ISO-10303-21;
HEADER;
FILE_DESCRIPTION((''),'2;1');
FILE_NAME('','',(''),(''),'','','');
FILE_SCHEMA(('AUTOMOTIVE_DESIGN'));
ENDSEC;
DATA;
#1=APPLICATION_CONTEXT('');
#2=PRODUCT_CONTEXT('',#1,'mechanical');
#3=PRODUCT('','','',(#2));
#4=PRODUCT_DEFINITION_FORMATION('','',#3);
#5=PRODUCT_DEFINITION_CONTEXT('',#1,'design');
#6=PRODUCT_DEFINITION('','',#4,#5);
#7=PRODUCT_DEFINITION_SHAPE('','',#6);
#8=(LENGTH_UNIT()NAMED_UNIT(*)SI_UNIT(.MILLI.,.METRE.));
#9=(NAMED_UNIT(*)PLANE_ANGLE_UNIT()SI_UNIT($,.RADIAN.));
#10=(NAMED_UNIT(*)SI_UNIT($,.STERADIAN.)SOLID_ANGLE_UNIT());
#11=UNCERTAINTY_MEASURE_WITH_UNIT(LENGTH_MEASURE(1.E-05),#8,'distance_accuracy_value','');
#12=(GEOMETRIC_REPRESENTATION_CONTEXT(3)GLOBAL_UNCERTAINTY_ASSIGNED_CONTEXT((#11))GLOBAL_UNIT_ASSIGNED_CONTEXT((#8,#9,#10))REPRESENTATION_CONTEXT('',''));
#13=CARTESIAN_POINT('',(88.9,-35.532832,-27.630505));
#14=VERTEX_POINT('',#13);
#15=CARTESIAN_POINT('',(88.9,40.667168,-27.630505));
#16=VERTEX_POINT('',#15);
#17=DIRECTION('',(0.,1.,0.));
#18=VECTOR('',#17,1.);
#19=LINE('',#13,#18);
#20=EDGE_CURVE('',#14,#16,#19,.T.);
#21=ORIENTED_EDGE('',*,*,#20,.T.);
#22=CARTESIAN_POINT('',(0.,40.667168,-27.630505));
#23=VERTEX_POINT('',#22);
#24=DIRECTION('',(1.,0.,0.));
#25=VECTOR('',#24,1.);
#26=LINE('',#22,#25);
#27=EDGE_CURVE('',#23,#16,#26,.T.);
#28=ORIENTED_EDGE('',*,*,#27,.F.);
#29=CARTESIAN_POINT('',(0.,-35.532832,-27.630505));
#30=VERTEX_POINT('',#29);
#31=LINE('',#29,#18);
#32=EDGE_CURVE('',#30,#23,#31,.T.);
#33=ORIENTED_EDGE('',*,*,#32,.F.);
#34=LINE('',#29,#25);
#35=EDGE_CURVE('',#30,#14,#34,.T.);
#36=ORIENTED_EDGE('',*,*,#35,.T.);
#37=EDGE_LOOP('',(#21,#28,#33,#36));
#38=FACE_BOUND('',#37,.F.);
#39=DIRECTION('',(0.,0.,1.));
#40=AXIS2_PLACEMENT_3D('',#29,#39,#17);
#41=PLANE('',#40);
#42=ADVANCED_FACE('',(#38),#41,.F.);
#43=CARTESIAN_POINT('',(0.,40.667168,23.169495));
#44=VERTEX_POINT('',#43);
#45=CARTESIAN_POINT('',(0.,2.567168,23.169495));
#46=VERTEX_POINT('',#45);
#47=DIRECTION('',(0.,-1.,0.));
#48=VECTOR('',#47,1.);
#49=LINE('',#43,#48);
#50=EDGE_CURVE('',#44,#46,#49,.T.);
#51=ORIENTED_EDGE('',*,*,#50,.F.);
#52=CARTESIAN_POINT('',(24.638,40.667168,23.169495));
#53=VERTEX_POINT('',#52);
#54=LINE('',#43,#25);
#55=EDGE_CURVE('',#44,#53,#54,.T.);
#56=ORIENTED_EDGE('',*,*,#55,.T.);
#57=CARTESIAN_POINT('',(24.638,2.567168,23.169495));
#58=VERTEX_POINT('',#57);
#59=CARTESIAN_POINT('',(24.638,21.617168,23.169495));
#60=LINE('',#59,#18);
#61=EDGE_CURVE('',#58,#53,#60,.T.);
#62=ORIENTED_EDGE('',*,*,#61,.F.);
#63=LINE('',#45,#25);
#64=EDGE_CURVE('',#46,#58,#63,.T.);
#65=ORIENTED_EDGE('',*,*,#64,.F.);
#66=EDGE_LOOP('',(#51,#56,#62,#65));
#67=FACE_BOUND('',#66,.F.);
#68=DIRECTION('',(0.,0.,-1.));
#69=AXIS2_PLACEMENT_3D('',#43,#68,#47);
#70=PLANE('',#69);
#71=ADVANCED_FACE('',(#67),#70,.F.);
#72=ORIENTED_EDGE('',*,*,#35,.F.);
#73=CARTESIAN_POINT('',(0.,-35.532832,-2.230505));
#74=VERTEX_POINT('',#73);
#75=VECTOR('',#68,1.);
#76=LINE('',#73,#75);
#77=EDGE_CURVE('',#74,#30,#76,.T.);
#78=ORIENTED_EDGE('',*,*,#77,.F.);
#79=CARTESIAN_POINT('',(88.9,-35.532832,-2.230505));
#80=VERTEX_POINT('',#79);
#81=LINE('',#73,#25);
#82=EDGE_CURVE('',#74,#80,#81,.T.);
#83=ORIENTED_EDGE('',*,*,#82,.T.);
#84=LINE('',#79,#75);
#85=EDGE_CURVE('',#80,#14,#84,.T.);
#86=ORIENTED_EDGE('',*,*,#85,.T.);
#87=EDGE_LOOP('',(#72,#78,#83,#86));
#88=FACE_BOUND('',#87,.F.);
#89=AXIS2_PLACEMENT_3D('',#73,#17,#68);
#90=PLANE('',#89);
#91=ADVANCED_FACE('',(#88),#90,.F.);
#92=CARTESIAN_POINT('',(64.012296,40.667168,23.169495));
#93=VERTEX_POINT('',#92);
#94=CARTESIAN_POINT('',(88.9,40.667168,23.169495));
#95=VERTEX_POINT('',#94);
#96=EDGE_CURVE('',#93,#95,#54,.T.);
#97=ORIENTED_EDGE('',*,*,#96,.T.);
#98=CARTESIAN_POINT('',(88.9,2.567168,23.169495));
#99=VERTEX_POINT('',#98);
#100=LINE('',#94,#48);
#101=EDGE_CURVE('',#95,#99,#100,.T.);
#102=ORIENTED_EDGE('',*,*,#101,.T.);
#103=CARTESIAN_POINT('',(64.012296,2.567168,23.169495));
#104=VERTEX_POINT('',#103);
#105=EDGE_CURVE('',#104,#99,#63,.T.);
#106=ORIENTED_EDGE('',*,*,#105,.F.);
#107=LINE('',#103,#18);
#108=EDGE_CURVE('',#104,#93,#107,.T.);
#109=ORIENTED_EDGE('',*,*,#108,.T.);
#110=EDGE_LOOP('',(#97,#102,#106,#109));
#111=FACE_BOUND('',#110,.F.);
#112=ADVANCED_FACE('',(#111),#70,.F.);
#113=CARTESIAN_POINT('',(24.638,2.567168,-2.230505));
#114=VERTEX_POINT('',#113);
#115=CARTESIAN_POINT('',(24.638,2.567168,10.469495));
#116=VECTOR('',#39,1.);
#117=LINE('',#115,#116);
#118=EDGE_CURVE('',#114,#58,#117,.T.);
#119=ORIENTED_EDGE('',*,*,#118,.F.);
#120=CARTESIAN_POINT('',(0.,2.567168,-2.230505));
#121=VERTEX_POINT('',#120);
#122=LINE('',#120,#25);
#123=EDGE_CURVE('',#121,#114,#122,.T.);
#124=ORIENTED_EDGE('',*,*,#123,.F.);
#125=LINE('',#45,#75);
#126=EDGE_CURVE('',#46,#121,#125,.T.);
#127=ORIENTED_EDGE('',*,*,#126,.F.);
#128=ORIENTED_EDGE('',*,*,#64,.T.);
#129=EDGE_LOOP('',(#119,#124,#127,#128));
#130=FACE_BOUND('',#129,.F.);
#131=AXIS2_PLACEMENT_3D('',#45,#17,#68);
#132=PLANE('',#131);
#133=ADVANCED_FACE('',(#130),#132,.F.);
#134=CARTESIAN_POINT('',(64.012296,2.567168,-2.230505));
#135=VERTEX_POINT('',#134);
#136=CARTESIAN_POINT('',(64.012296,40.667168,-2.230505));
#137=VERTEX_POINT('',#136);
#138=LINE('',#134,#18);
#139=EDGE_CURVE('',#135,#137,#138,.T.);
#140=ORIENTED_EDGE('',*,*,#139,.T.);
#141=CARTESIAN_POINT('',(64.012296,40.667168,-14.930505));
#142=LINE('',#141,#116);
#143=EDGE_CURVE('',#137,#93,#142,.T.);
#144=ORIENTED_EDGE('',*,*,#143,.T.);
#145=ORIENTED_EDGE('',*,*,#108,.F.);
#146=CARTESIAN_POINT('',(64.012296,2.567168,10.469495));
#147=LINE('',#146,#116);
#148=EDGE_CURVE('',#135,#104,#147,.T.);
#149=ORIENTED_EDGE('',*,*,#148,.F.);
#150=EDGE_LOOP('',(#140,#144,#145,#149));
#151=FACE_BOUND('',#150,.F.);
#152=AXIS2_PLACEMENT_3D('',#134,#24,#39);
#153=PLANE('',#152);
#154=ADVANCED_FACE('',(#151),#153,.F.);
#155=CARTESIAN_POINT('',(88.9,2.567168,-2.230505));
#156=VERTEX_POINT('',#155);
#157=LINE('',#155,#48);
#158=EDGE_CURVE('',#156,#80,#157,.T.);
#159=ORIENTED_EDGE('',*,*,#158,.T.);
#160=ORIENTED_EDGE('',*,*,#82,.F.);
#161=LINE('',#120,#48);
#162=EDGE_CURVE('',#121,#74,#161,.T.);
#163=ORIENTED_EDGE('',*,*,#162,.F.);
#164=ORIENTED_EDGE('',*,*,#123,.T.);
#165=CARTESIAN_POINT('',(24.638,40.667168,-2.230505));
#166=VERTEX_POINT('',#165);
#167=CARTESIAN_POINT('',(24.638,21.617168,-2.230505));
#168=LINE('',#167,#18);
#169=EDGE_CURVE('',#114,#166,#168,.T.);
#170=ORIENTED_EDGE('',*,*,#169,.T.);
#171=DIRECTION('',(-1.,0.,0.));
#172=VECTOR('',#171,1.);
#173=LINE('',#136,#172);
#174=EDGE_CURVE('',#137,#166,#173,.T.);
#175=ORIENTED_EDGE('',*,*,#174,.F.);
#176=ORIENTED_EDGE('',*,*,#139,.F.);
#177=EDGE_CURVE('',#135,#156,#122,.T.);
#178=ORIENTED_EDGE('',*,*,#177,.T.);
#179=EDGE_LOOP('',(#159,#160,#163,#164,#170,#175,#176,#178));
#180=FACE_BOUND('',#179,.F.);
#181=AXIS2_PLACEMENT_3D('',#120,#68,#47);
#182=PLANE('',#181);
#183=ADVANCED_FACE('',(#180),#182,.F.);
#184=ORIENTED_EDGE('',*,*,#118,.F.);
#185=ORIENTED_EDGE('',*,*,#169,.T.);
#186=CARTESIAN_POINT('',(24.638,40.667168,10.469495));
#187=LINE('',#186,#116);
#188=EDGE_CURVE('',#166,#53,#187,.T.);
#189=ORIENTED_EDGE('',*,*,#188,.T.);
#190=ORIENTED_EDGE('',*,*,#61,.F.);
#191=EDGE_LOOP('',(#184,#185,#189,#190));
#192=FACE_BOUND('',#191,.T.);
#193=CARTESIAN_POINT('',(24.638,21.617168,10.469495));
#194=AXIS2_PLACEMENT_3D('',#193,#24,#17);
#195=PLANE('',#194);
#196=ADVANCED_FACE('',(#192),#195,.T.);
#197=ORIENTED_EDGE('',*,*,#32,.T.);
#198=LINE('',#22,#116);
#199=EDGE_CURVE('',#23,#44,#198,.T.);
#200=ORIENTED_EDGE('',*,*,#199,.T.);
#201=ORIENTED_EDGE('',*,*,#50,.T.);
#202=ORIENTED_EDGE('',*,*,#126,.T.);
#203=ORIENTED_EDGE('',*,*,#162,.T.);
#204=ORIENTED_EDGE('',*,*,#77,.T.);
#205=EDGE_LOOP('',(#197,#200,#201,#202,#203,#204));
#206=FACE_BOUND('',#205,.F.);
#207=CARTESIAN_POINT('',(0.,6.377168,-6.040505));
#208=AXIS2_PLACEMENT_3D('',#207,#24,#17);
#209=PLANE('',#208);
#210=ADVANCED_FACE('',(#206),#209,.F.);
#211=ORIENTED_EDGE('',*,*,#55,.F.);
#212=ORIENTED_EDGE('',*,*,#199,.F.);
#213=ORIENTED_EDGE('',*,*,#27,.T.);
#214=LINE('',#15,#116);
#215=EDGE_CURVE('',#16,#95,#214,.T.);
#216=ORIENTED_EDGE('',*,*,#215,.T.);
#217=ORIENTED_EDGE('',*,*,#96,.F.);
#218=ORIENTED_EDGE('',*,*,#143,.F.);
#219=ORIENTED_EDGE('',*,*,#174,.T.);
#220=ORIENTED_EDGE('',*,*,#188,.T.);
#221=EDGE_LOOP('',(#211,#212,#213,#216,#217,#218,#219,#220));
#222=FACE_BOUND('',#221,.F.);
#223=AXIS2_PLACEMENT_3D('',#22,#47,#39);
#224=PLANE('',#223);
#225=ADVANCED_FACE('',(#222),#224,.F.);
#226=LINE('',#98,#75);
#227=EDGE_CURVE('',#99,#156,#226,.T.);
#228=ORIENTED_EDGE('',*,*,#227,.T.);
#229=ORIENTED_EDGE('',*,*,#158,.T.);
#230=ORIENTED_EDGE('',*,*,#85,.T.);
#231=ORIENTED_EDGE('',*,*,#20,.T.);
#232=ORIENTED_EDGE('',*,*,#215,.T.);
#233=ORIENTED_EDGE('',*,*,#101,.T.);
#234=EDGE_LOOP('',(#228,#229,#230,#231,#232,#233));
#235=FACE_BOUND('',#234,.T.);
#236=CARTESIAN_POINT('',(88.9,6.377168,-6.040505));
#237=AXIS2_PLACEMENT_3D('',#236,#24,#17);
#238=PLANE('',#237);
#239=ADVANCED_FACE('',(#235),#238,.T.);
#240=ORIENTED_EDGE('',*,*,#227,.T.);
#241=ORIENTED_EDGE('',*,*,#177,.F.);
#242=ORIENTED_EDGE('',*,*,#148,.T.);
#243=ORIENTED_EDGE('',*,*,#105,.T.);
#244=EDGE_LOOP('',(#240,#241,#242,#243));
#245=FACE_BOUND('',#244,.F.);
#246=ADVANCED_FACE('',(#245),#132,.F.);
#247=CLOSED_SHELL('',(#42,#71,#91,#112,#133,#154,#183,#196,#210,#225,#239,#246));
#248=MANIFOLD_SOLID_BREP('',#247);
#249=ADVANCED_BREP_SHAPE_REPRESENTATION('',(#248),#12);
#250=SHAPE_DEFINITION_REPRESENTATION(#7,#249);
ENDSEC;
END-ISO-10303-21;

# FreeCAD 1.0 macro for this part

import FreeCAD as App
import Part
import Sketcher
Q = App.Units.Quantity


def add_polygon(sketch, points):
    """Adds a closed chain of lines whose ends are joined by coincident constraints."""
    first, n = sketch.GeometryCount, len(points)
    for a, b in zip(points, points[1:] + points[:1]):
        sketch.addGeometry(Part.LineSegment(App.Vector(*a, 0), App.Vector(*b, 0)), False)
    for i in range(n):
        sketch.addConstraint(Sketcher.Constraint("Coincident", first + i, 2, first + (i + 1) % n, 1))

doc = App.newDocument("Part")
body = doc.addObject("PartDesign::Body", "Body")

# Sketch on YZ plane
sketch1 = body.newObject("Sketcher::SketchObject", "Sketch")
sketch1.AttachmentSupport = (doc.getObject("YZ_Plane"), [""])
sketch1.MapMode = "FlatFace"
add_polygon(sketch1, [(-36, -2), (-36, -28), (41, -28), (41, 23), (3, 23), (3, -2)])  # lines 0-5
sketch1.addConstraint([
    Sketcher.Constraint("Vertical", 0),
    Sketcher.Constraint("Horizontal", 1),
    Sketcher.Constraint("Vertical", 2),
    Sketcher.Constraint("Horizontal", 3),
    Sketcher.Constraint("Vertical", 4),
    Sketcher.Constraint("Horizontal", 5),
    Sketcher.Constraint("Equal", 3, 5),
    Sketcher.Constraint("Equal", 0, 4),
    Sketcher.Constraint("DistanceX", 1, 1, 1, 2, Q("3 in")),
    Sketcher.Constraint("DistanceY", 0, 2, 0, 1, Q("1 in")),
    Sketcher.Constraint("DistanceX", -1, 1, 3, 2, 2.567168),
    Sketcher.Constraint("DistanceY", 0, 2, -1, 1, 27.630505),
])
pad1 = body.newObject("PartDesign::Pad", "Pad")
pad1.Profile = sketch1
pad1.Length = Q("3.5 in")

# Sketch on XZ plane
sketch2 = body.newObject("Sketcher::SketchObject", "Sketch001")
sketch2.AttachmentSupport = (doc.getObject("XZ_Plane"), [""])
sketch2.MapMode = "FlatFace"
sketch2.AttachmentOffset = App.Placement(App.Vector(0, 0, -2.567168), App.Rotation())
add_polygon(sketch2, [(44, 23), (44, -2), (64, -2), (64, 23)])  # lines 0-3
sketch2.addConstraint([
    Sketcher.Constraint("Vertical", 0),
    Sketcher.Constraint("Horizontal", 1),
    Sketcher.Constraint("Vertical", 2),
    Sketcher.Constraint("Horizontal", 3),
    Sketcher.Constraint("DistanceY", 0, 2, 0, 1, Q("1 in")),
    Sketcher.Constraint("DistanceX", -1, 1, 0, 2, Q("1.75 in")),
    Sketcher.Constraint("DistanceX", 1, 1, 1, 2, 19.562296),
    Sketcher.Constraint("DistanceY", 0, 2, -1, 1, 2.230505),
])
pocket1 = body.newObject("PartDesign::Pocket", "Pocket")
pocket1.Profile = sketch2
pocket1.Type = "ThroughAll"

# Sketch on YZ plane
sketch3 = body.newObject("Sketcher::SketchObject", "Sketch002")
sketch3.AttachmentSupport = (doc.getObject("YZ_Plane"), [""])
sketch3.MapMode = "FlatFace"
sketch3.AttachmentOffset = App.Placement(App.Vector(0, 0, 1.75 * 25.4), App.Rotation())
add_polygon(sketch3, [(3, 23), (3, -2), (41, -2), (41, 23)])  # lines 0-3
sketch3.addConstraint([
    Sketcher.Constraint("Vertical", 0),
    Sketcher.Constraint("Horizontal", 1),
    Sketcher.Constraint("Vertical", 2),
    Sketcher.Constraint("Horizontal", 3),
    Sketcher.Constraint("DistanceY", 0, 2, 0, 1, Q("1 in")),
    Sketcher.Constraint("DistanceX", 1, 1, 1, 2, Q("1.5 in")),
    Sketcher.Constraint("DistanceX", -1, 1, 0, 2, 2.567168),
    Sketcher.Constraint("DistanceY", 0, 2, -1, 1, 2.230505),
])
pocket2 = body.newObject("PartDesign::Pocket", "Pocket001")
pocket2.Profile = sketch3
pocket2.Length = Q("0.78 in")

doc.recompute()
